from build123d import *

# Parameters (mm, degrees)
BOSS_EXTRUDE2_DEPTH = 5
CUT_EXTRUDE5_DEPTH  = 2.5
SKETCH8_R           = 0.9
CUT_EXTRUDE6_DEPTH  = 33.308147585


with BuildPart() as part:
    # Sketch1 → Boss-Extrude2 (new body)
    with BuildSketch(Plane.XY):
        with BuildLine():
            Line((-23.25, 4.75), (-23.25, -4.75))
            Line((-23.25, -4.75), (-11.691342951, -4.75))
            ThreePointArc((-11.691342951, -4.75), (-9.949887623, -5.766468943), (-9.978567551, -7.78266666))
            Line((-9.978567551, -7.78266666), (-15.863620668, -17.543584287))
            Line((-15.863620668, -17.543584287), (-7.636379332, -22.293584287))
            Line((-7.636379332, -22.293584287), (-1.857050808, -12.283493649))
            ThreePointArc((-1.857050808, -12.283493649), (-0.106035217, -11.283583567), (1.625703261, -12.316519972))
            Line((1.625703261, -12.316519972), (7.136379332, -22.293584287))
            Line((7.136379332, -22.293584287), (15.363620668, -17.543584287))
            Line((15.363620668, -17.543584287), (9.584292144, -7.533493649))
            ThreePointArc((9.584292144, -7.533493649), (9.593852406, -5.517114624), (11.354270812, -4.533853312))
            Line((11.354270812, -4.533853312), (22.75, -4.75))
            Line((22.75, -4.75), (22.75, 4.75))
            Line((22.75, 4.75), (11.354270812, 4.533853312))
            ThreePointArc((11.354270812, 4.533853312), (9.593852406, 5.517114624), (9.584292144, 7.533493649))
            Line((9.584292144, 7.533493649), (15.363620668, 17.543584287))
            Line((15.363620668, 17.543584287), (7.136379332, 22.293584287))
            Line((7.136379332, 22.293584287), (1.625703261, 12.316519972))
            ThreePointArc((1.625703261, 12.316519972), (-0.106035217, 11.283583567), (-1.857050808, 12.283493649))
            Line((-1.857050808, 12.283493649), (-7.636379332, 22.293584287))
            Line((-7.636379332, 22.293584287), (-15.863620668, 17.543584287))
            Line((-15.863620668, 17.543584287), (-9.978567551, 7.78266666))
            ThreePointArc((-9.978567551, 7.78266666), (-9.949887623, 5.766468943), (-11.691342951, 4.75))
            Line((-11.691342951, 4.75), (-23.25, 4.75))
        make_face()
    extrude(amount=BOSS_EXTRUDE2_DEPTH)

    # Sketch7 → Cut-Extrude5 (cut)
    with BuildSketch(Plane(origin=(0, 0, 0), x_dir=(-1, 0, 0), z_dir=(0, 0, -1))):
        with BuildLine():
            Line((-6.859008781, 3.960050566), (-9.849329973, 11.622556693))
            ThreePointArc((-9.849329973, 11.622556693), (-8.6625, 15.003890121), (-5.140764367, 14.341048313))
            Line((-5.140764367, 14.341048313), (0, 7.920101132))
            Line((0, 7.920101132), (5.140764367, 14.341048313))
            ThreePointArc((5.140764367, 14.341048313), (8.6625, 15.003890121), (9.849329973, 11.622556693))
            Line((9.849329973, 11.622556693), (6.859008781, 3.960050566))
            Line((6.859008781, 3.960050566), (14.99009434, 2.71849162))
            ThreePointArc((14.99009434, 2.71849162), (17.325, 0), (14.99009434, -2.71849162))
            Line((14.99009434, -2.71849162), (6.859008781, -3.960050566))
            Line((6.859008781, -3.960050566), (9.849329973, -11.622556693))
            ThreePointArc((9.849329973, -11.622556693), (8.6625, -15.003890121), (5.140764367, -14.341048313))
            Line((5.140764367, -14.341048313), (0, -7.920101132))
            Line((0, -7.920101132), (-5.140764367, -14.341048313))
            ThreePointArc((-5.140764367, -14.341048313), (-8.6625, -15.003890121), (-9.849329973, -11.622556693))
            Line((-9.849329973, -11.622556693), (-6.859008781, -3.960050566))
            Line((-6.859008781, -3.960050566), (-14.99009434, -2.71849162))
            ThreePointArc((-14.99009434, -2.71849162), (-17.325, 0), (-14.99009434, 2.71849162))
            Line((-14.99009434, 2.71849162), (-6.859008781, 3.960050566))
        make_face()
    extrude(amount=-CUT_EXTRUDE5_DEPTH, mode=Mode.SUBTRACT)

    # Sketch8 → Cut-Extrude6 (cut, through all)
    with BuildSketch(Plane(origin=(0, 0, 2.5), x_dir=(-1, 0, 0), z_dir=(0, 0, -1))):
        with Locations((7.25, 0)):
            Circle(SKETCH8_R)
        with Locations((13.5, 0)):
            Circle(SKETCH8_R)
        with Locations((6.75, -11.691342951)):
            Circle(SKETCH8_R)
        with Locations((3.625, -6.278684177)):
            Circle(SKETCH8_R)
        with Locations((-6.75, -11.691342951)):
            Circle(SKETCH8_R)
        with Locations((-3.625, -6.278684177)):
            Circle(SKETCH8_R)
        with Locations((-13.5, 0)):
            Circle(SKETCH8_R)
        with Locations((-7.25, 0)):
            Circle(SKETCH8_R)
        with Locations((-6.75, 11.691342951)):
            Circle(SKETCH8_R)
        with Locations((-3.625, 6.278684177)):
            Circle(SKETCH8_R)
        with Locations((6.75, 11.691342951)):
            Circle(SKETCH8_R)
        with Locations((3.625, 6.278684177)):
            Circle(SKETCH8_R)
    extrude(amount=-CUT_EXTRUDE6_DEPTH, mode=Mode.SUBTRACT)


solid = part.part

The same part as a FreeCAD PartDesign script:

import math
import FreeCAD as App
import Part
import Sketcher
from FreeCAD import Vector
Q = App.Units.Quantity

doc = App.newDocument("Part")
body = doc.addObject("PartDesign::Body", "Body")

# Sketch on XY plane
sketch1 = doc.addObject("Sketcher::SketchObject", "Sketch")
body.addObject(sketch1)
sketch1.AttachmentSupport = (doc.XY_Plane, [""])
sketch1.MapMode = "FlatFace"
sketch1.addGeometry([
    Part.LineSegment(Vector(-23.2, 4.8, 0), Vector(-23.2, -4.8, 0)),  # 0
    Part.LineSegment(Vector(-23.2, -4.8, 0), Vector(-11.7, -4.8, 0)),  # 1
    Part.ArcOfCircle(Part.Circle(Vector(-11.7, -6.8, 0), Vector(0, 0, 1), 2), math.radians(-31), math.radians(90)),  # 2
    Part.LineSegment(Vector(-10, -7.8, 0), Vector(-15.9, -17.5, 0)),  # 3
    Part.LineSegment(Vector(-15.9, -17.5, 0), Vector(-7.6, -22.3, 0)),  # 4
    Part.LineSegment(Vector(-7.6, -22.3, 0), Vector(-1.9, -12.3, 0)),  # 5
    Part.ArcOfCircle(Part.Circle(Vector(-0.1, -13.3, 0), Vector(0, 0, 1), 2), math.radians(29), math.radians(150)),  # 6
    Part.LineSegment(Vector(1.6, -12.3, 0), Vector(7.1, -22.3, 0)),  # 7
    Part.LineSegment(Vector(7.1, -22.3, 0), Vector(15.4, -17.5, 0)),  # 8
    Part.LineSegment(Vector(15.4, -17.5, 0), Vector(9.6, -7.5, 0)),  # 9
    Part.ArcOfCircle(Part.Circle(Vector(11.3, -6.5, 0), Vector(0, 0, 1), 2), math.radians(89), math.radians(210)),  # 10
    Part.LineSegment(Vector(11.4, -4.5, 0), Vector(22.8, -4.8, 0)),  # 11
    Part.LineSegment(Vector(22.8, -4.8, 0), Vector(22.8, 4.8, 0)),  # 12
    Part.LineSegment(Vector(22.8, 4.8, 0), Vector(11.4, 4.5, 0)),  # 13
    Part.ArcOfCircle(Part.Circle(Vector(11.3, 6.5, 0), Vector(0, 0, 1), 2), math.radians(150), math.radians(271)),  # 14
    Part.LineSegment(Vector(9.6, 7.5, 0), Vector(15.4, 17.5, 0)),  # 15
    Part.LineSegment(Vector(15.4, 17.5, 0), Vector(7.1, 22.3, 0)),  # 16
    Part.LineSegment(Vector(7.1, 22.3, 0), Vector(1.6, 12.3, 0)),  # 17
    Part.ArcOfCircle(Part.Circle(Vector(-0.1, 13.3, 0), Vector(0, 0, 1), 2), math.radians(-150), math.radians(-29)),  # 18
    Part.LineSegment(Vector(-1.9, 12.3, 0), Vector(-7.6, 22.3, 0)),  # 19
    Part.LineSegment(Vector(-7.6, 22.3, 0), Vector(-15.9, 17.5, 0)),  # 20
    Part.LineSegment(Vector(-15.9, 17.5, 0), Vector(-10, 7.8, 0)),  # 21
    Part.ArcOfCircle(Part.Circle(Vector(-11.7, 6.8, 0), Vector(0, 0, 1), 2), math.radians(-90), math.radians(31)),  # 22
    Part.LineSegment(Vector(-11.7, 4.8, 0), Vector(-23.2, 4.8, 0)),  # 23
], False)
sketch1.addConstraint([
    Sketcher.Constraint("Coincident", 0, 2, 1, 1),
    Sketcher.Constraint("Tangent", 1, 2, 2, 2),
    Sketcher.Constraint("Tangent", 2, 1, 3, 1),
    Sketcher.Constraint("Coincident", 3, 2, 4, 1),
    Sketcher.Constraint("Coincident", 4, 2, 5, 1),
    Sketcher.Constraint("Tangent", 5, 2, 6, 2),
    Sketcher.Constraint("Tangent", 6, 1, 7, 1),
    Sketcher.Constraint("Coincident", 7, 2, 8, 1),
    Sketcher.Constraint("Coincident", 8, 2, 9, 1),
    Sketcher.Constraint("Tangent", 9, 2, 10, 2),
    Sketcher.Constraint("Tangent", 10, 1, 11, 1),
    Sketcher.Constraint("Coincident", 11, 2, 12, 1),
    Sketcher.Constraint("Coincident", 12, 2, 13, 1),
    Sketcher.Constraint("Tangent", 13, 2, 14, 2),
    Sketcher.Constraint("Tangent", 14, 1, 15, 1),
    Sketcher.Constraint("Coincident", 15, 2, 16, 1),
    Sketcher.Constraint("Coincident", 16, 2, 17, 1),
    Sketcher.Constraint("Tangent", 17, 2, 18, 2),
    Sketcher.Constraint("Tangent", 18, 1, 19, 1),
    Sketcher.Constraint("Coincident", 19, 2, 20, 1),
    Sketcher.Constraint("Coincident", 20, 2, 21, 1),
    Sketcher.Constraint("Tangent", 21, 2, 22, 2),
    Sketcher.Constraint("Tangent", 22, 1, 23, 1),
    Sketcher.Constraint("Coincident", 23, 2, 0, 1),
    Sketcher.Constraint("Vertical", 0),
    Sketcher.Constraint("Horizontal", 1),
    Sketcher.Constraint("Vertical", 12),
    Sketcher.Constraint("Horizontal", 23),
    Sketcher.Constraint("Equal", 2, 6),
    Sketcher.Constraint("Equal", 6, 10),
    Sketcher.Constraint("Equal", 10, 14),
    Sketcher.Constraint("Equal", 14, 18),
    Sketcher.Constraint("Equal", 18, 22),
    Sketcher.Constraint("Symmetric", 10, 3, 14, 3, -1),
    Sketcher.Constraint("Symmetric", 6, 3, 18, 3, -1),
    Sketcher.Constraint("Symmetric", 2, 3, 22, 3, -1),
    Sketcher.Constraint("Symmetric", 8, 2, 15, 2, -1),
    Sketcher.Constraint("Symmetric", 7, 2, 16, 2, -1),
    Sketcher.Constraint("Symmetric", 4, 2, 19, 2, -1),
    Sketcher.Constraint("Symmetric", 3, 2, 20, 2, -1),
    Sketcher.Constraint("Perpendicular", 4, 5),
    Sketcher.Constraint("Perpendicular", 8, 9),
    Sketcher.Constraint("Parallel", 5, 15),
    Sketcher.Constraint("Horizontal", 4, 2, 7, 2),
    Sketcher.Constraint("Horizontal", 3, 2, 8, 2),
    Sketcher.Constraint("Horizontal", 1, 2, 11, 2),
    Sketcher.Constraint("Horizontal", 12, 2, 22, 1),
    Sketcher.Constraint("Equal", 3, 7),
    Sketcher.Constraint("Equal", 5, 9),
    Sketcher.Constraint("Equal", 7, 11),
    Sketcher.Constraint("Radius", 2, 2.0),
    Sketcher.Constraint("Angle", 4, Q("-30 deg")),
    Sketcher.Constraint("DistanceY", 0, 2, 0, 1, 9.5),
    Sketcher.Constraint("Distance", 4, 9.5),
    Sketcher.Constraint("DistanceX", 0, 2, -1, 1, 23.25),
    Sketcher.Constraint("DistanceX", -1, 1, 11, 2, 22.75),
    Sketcher.Constraint("DistanceX", 6, 3, -1, 1, 0.125),
    Sketcher.Constraint("Distance", 3, 11.397779),
    Sketcher.Constraint("DistanceX", 1, 1, 1, 2, 11.558657),
])
pad1 = doc.addObject("PartDesign::Pad", "Pad")
body.addObject(pad1)
pad1.Profile = sketch1
pad1.Length = 5

# Sketch on XY plane
sketch2 = doc.addObject("Sketcher::SketchObject", "Sketch001")
body.addObject(sketch2)
sketch2.AttachmentSupport = (doc.XY_Plane, [""])
sketch2.MapMode = "FlatFace"
sketch2.addGeometry([
    Part.LineSegment(Vector(9.8, 11.6, 0), Vector(6.9, 4, 0)),  # 0
    Part.LineSegment(Vector(6.9, 4, 0), Vector(15, 2.7, 0)),  # 1
    Part.ArcOfCircle(Part.Circle(Vector(14.6, 0, 0), Vector(0, 0, 1), 2.8), math.radians(-81), math.radians(81)),  # 2
    Part.LineSegment(Vector(15, -2.7, 0), Vector(6.9, -4, 0)),  # 3
    Part.LineSegment(Vector(6.9, -4, 0), Vector(9.8, -11.6, 0)),  # 4
    Part.ArcOfCircle(Part.Circle(Vector(7.3, -12.6, 0), Vector(0, 0, 1), 2.8), math.radians(-141), math.radians(21)),  # 5
    Part.LineSegment(Vector(5.1, -14.3, 0), Vector(0, -7.9, 0)),  # 6
    Part.LineSegment(Vector(0, -7.9, 0), Vector(-5.1, -14.3, 0)),  # 7
    Part.ArcOfCircle(Part.Circle(Vector(-7.3, -12.6, 0), Vector(0, 0, 1), 2.8), math.radians(159), math.radians(321)),  # 8
    Part.LineSegment(Vector(-9.8, -11.6, 0), Vector(-6.9, -4, 0)),  # 9
    Part.LineSegment(Vector(-6.9, -4, 0), Vector(-15, -2.7, 0)),  # 10
    Part.ArcOfCircle(Part.Circle(Vector(-14.6, 0, 0), Vector(0, 0, 1), 2.8), math.radians(99), math.radians(261)),  # 11
    Part.LineSegment(Vector(-15, 2.7, 0), Vector(-6.9, 4, 0)),  # 12
    Part.LineSegment(Vector(-6.9, 4, 0), Vector(-9.8, 11.6, 0)),  # 13
    Part.ArcOfCircle(Part.Circle(Vector(-7.3, 12.6, 0), Vector(0, 0, 1), 2.8), math.radians(39), math.radians(201)),  # 14
    Part.LineSegment(Vector(-5.1, 14.3, 0), Vector(0, 7.9, 0)),  # 15
    Part.LineSegment(Vector(0, 7.9, 0), Vector(5.1, 14.3, 0)),  # 16
    Part.ArcOfCircle(Part.Circle(Vector(7.3, 12.6, 0), Vector(0, 0, 1), 2.8), math.radians(-21), math.radians(141)),  # 17
], False)
sketch2.addConstraint([
    Sketcher.Constraint("Coincident", 0, 2, 1, 1),
    Sketcher.Constraint("Tangent", 1, 2, 2, 2),
    Sketcher.Constraint("Tangent", 2, 1, 3, 1),
    Sketcher.Constraint("Coincident", 3, 2, 4, 1),
    Sketcher.Constraint("Tangent", 4, 2, 5, 2),
    Sketcher.Constraint("Tangent", 5, 1, 6, 1),
    Sketcher.Constraint("Coincident", 6, 2, 7, 1),
    Sketcher.Constraint("Tangent", 7, 2, 8, 2),
    Sketcher.Constraint("Tangent", 8, 1, 9, 1),
    Sketcher.Constraint("Coincident", 9, 2, 10, 1),
    Sketcher.Constraint("Tangent", 10, 2, 11, 2),
    Sketcher.Constraint("Tangent", 11, 1, 12, 1),
    Sketcher.Constraint("Coincident", 12, 2, 13, 1),
    Sketcher.Constraint("Tangent", 13, 2, 14, 2),
    Sketcher.Constraint("Tangent", 14, 1, 15, 1),
    Sketcher.Constraint("Coincident", 15, 2, 16, 1),
    Sketcher.Constraint("Tangent", 16, 2, 17, 2),
    Sketcher.Constraint("Tangent", 17, 1, 0, 1),
    Sketcher.Constraint("Equal", 2, 5),
    Sketcher.Constraint("Equal", 5, 8),
    Sketcher.Constraint("Equal", 8, 11),
    Sketcher.Constraint("Equal", 11, 14),
    Sketcher.Constraint("Equal", 14, 17),
    Sketcher.Constraint("Symmetric", 2, 3, 11, 3, -1, 1),
    Sketcher.Constraint("Symmetric", 5, 3, 14, 3, -1, 1),
    Sketcher.Constraint("Symmetric", 8, 3, 17, 3, -1, 1),
    Sketcher.Constraint("Symmetric", 0, 2, 9, 2, -1, 1),
    Sketcher.Constraint("Symmetric", 3, 2, 12, 2, -1, 1),
    Sketcher.Constraint("Symmetric", 6, 2, 15, 2, -1, 1),
    Sketcher.Constraint("Symmetric", 5, 3, 8, 3, -2),
    Sketcher.Constraint("Symmetric", 3, 2, 9, 2, -2),
    Sketcher.Constraint("PointOnObject", 2, 3, -1),
    Sketcher.Constraint("PointOnObject", 6, 2, -2),
    Sketcher.Constraint("Equal", 0, 1),
    Sketcher.Constraint("Equal", 4, 6),
    Sketcher.Constraint("Radius", 2, 2.75),
    Sketcher.Constraint("DistanceX", 11, 3, 2, 3, 29.15),
    Sketcher.Constraint("DistanceX", 8, 3, 5, 3, 14.575),
    Sketcher.Constraint("DistanceY", 6, 2, -1, 1, 7.920101),
    Sketcher.Constraint("DistanceY", 3, 2, 0, 2, 7.920101),
])
pocket1 = doc.addObject("PartDesign::Pocket", "Pocket")
body.addObject(pocket1)
pocket1.Profile = sketch2
pocket1.Length = 2.5
pocket1.Reversed = True

# Sketch on XY plane
sketch3 = doc.addObject("Sketcher::SketchObject", "Sketch002")
body.addObject(sketch3)
sketch3.AttachmentSupport = (doc.XY_Plane, [""])
sketch3.MapMode = "FlatFace"
sketch3.AttachmentOffset = App.Placement(Vector(0, 0, 2.5), App.Rotation())
sketch3.addGeometry([
    Part.Circle(Vector(-7.2, 0, 0), Vector(0, 0, 1), 0.9),  # 0
    Part.Circle(Vector(-13.5, 0, 0), Vector(0, 0, 1), 0.9),  # 1
    Part.Circle(Vector(-6.8, -11.7, 0), Vector(0, 0, 1), 0.9),  # 2
    Part.Circle(Vector(-3.6, -6.3, 0), Vector(0, 0, 1), 0.9),  # 3
    Part.Circle(Vector(6.8, -11.7, 0), Vector(0, 0, 1), 0.9),  # 4
    Part.Circle(Vector(3.6, -6.3, 0), Vector(0, 0, 1), 0.9),  # 5
    Part.Circle(Vector(13.5, 0, 0), Vector(0, 0, 1), 0.9),  # 6
    Part.Circle(Vector(7.2, 0, 0), Vector(0, 0, 1), 0.9),  # 7
    Part.Circle(Vector(6.8, 11.7, 0), Vector(0, 0, 1), 0.9),  # 8
    Part.Circle(Vector(3.6, 6.3, 0), Vector(0, 0, 1), 0.9),  # 9
    Part.Circle(Vector(-6.8, 11.7, 0), Vector(0, 0, 1), 0.9),  # 10
    Part.Circle(Vector(-3.6, 6.3, 0), Vector(0, 0, 1), 0.9),  # 11
], False)
sketch3.addConstraint([
    Sketcher.Constraint("Equal", 0, 1),
    Sketcher.Constraint("Equal", 1, 2),
    Sketcher.Constraint("Equal", 2, 3),
    Sketcher.Constraint("Equal", 3, 4),
    Sketcher.Constraint("Equal", 4, 5),
    Sketcher.Constraint("Equal", 5, 6),
    Sketcher.Constraint("Equal", 6, 7),
    Sketcher.Constraint("Equal", 7, 8),
    Sketcher.Constraint("Equal", 8, 9),
    Sketcher.Constraint("Equal", 9, 10),
    Sketcher.Constraint("Equal", 10, 11),
    Sketcher.Constraint("Symmetric", 1, 3, 6, 3, -1, 1),
    Sketcher.Constraint("Symmetric", 0, 3, 7, 3, -1, 1),
    Sketcher.Constraint("Symmetric", 2, 3, 8, 3, -1, 1),
    Sketcher.Constraint("Symmetric", 3, 3, 9, 3, -1, 1),
    Sketcher.Constraint("Symmetric", 4, 3, 10, 3, -1, 1),
    Sketcher.Constraint("Symmetric", 5, 3, 11, 3, -1, 1),
    Sketcher.Constraint("Symmetric", 2, 3, 4, 3, -2),
    Sketcher.Constraint("Symmetric", 3, 3, 5, 3, -2),
    Sketcher.Constraint("PointOnObject", 0, 3, -1),
    Sketcher.Constraint("PointOnObject", 1, 3, -1),
    Sketcher.Constraint("Diameter", 0, 1.8),
    Sketcher.Constraint("DistanceX", 0, 3, 4, 3, 14.0),
    Sketcher.Constraint("DistanceX", 1, 3, -1, 1, 13.5),
    Sketcher.Constraint("DistanceX", 0, 3, 2, 3, 0.5),
    Sketcher.Constraint("DistanceX", 3, 3, 5, 3, 7.25),
    Sketcher.Constraint("DistanceY", 2, 3, 3, 3, 5.412659),
    Sketcher.Constraint("DistanceY", 5, 3, 9, 3, 12.557368),
])
pocket2 = doc.addObject("PartDesign::Pocket", "Pocket001")
body.addObject(pocket2)
pocket2.Profile = sketch3
pocket2.Type = "ThroughAll"
pocket2.Reversed = True

doc.recompute()
